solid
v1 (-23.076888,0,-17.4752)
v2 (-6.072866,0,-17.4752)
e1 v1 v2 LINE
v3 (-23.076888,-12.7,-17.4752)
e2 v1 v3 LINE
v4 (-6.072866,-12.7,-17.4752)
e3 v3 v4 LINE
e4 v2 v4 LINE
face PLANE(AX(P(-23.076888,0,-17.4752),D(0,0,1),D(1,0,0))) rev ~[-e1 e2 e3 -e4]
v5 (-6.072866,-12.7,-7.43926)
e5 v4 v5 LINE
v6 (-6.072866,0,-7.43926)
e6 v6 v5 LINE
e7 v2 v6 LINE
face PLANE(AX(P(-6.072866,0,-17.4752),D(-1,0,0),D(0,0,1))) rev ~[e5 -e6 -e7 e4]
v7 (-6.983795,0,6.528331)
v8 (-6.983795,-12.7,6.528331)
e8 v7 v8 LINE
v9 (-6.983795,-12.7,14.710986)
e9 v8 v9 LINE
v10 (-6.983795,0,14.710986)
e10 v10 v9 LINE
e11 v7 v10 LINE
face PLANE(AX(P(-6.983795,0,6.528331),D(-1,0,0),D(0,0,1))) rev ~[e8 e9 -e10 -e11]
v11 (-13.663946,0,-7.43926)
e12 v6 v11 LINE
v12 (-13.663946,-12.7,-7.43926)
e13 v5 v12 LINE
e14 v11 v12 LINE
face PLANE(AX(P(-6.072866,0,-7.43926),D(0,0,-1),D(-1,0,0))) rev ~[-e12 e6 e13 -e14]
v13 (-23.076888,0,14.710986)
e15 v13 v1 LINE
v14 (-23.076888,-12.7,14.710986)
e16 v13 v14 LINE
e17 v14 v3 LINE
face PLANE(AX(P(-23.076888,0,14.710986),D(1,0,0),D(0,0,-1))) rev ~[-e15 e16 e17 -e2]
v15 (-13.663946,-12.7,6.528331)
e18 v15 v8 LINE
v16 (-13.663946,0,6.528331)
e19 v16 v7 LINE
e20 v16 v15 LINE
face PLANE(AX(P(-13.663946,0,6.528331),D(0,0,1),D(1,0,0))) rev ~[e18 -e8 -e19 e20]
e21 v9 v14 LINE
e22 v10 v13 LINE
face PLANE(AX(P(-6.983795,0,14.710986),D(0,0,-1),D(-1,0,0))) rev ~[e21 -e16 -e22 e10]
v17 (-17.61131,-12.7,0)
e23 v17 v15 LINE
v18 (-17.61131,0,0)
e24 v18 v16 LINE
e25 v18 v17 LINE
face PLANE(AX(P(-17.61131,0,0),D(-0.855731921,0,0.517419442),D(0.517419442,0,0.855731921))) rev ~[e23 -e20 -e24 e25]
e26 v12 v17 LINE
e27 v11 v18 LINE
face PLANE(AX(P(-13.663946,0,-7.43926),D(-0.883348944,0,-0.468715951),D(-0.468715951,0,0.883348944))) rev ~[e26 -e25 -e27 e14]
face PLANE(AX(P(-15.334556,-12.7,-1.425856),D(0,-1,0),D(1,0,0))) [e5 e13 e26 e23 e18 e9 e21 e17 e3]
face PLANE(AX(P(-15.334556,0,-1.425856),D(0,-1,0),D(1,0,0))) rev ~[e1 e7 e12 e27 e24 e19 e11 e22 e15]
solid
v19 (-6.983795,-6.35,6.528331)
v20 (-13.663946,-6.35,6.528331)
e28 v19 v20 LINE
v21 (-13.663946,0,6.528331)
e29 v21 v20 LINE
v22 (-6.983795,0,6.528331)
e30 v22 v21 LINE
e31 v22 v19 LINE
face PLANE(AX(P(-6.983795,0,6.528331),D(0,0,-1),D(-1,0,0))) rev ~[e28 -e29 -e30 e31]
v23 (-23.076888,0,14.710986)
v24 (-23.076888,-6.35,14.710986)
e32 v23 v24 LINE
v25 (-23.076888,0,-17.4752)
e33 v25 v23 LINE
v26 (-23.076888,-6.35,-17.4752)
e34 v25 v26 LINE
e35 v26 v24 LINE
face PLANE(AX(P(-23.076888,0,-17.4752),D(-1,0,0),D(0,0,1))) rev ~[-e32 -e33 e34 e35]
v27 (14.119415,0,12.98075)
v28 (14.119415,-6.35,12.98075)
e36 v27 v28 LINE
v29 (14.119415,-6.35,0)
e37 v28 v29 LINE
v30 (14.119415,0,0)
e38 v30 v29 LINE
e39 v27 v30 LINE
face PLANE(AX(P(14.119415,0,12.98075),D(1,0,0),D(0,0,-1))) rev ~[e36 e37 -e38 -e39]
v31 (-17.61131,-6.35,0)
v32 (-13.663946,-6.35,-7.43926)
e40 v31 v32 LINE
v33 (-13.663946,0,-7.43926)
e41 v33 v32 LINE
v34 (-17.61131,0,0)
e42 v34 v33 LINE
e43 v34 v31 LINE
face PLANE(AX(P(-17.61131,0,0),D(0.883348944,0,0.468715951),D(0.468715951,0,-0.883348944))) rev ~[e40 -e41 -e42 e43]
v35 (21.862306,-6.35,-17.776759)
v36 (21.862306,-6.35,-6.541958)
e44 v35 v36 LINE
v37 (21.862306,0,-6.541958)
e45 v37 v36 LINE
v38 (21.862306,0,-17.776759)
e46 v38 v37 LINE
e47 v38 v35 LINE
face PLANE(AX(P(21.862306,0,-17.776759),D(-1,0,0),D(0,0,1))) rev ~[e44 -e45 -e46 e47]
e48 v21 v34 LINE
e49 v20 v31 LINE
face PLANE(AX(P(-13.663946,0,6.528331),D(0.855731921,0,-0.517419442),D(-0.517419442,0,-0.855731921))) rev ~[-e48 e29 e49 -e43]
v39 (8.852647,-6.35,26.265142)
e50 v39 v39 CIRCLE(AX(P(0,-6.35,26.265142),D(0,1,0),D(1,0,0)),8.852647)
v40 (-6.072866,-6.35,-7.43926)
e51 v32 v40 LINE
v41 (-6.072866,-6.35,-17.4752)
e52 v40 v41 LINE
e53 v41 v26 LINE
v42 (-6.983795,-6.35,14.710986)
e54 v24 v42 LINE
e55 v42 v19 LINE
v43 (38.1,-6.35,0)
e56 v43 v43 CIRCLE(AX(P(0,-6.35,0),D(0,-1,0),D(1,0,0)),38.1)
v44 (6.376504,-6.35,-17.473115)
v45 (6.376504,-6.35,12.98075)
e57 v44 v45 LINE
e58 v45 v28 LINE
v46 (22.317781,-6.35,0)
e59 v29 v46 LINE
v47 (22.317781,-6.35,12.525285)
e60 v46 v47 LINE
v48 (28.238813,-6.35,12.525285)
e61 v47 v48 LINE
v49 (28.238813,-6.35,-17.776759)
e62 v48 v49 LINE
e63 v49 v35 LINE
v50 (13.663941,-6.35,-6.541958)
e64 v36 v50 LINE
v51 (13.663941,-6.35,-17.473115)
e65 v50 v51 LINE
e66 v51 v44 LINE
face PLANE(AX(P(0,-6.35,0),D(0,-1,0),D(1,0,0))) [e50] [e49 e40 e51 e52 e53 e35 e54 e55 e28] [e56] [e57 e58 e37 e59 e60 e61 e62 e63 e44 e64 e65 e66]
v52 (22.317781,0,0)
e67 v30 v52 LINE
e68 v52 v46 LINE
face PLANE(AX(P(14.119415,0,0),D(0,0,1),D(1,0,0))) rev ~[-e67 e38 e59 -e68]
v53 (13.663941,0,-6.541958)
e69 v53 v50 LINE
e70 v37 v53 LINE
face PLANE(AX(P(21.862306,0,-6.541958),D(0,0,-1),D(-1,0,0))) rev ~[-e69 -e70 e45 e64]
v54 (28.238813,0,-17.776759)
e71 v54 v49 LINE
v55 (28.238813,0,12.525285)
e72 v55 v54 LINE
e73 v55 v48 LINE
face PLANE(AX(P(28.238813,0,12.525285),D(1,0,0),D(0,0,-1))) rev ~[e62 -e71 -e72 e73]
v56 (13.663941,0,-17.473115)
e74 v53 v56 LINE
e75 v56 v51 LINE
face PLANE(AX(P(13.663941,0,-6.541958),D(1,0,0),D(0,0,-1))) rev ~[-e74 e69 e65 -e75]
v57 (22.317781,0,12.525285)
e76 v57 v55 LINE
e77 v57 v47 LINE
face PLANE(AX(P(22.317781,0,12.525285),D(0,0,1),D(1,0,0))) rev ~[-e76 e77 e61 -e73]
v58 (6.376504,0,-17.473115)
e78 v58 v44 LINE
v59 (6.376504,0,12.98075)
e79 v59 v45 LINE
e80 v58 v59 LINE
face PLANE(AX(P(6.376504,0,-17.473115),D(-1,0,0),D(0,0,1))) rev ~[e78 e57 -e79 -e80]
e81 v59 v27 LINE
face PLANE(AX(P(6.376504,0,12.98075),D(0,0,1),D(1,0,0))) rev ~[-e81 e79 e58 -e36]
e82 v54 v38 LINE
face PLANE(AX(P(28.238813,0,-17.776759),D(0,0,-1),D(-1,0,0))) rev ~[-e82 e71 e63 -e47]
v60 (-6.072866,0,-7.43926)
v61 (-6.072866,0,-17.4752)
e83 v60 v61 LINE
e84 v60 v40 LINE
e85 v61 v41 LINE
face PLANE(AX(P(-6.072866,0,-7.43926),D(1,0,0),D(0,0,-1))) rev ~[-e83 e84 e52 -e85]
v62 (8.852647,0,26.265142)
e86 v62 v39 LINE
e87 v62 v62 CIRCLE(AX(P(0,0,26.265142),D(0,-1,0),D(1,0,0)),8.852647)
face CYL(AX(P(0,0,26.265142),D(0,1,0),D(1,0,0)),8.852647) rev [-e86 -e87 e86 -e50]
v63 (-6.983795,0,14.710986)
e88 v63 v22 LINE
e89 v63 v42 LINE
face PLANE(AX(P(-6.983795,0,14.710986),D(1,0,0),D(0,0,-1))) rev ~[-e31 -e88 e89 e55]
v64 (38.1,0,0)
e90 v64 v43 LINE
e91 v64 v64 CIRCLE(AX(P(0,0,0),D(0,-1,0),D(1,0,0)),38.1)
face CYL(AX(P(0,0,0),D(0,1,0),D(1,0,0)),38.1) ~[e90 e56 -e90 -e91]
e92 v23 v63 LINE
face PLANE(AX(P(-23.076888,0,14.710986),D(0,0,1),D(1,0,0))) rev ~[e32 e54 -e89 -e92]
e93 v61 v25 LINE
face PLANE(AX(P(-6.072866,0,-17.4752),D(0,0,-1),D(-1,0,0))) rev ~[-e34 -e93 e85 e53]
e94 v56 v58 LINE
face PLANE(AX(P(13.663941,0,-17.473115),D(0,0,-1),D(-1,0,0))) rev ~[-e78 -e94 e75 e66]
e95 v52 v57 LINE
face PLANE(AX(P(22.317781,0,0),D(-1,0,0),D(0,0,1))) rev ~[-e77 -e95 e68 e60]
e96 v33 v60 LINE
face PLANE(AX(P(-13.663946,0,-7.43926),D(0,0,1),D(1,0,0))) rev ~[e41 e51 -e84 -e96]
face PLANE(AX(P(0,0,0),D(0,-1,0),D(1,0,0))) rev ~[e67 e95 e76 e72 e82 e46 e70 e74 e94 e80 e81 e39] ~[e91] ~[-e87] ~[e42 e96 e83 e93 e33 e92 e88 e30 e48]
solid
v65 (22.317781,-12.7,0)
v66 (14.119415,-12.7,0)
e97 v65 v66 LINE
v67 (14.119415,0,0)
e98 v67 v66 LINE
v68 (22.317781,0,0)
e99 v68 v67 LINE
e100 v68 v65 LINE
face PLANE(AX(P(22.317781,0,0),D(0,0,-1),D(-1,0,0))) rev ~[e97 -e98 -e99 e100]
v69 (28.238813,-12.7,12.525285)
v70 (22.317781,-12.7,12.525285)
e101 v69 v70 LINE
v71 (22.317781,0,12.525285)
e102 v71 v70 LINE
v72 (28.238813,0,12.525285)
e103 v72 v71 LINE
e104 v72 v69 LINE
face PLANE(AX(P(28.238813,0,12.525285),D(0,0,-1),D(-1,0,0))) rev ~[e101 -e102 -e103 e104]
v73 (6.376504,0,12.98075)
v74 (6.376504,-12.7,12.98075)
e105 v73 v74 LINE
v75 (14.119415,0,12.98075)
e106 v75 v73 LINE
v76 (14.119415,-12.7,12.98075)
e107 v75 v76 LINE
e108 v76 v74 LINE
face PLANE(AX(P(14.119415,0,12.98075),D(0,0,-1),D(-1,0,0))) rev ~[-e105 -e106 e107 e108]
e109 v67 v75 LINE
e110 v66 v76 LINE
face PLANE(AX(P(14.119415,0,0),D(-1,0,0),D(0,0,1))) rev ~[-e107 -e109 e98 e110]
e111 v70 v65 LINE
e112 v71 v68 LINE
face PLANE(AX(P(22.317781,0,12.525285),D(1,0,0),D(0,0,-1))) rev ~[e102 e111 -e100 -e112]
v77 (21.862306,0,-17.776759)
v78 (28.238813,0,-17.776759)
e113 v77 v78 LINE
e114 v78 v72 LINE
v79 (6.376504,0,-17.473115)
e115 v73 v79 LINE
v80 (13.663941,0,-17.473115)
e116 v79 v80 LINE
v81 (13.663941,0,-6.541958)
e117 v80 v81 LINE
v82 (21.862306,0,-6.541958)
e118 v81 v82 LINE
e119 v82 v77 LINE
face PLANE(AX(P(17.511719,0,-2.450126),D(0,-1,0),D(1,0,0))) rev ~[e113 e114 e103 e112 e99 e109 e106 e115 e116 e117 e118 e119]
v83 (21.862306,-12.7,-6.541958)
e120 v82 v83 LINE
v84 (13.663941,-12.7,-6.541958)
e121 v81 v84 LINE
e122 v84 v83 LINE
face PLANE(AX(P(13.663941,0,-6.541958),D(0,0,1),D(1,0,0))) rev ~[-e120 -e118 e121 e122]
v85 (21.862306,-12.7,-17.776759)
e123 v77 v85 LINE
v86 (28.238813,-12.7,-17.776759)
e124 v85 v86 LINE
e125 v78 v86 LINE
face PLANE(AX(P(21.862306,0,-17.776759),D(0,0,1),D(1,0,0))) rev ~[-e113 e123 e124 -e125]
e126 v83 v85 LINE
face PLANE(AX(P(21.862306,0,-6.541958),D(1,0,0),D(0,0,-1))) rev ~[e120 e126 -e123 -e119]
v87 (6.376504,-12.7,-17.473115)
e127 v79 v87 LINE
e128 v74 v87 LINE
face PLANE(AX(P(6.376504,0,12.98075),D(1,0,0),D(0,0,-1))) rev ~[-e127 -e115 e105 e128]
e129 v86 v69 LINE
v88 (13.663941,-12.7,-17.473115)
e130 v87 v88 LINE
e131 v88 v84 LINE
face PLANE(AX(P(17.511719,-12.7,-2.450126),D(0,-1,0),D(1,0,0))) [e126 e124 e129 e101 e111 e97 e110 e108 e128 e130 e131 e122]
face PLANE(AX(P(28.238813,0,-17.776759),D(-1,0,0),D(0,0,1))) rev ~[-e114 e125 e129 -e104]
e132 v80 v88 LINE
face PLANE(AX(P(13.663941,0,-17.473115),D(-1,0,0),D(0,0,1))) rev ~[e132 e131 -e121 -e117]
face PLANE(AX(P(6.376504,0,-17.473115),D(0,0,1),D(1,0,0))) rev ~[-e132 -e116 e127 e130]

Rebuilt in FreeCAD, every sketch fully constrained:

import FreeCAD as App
import Part
import Sketcher

V = App.Vector
Q = App.Units.Quantity

doc = App.newDocument("Part")
body = doc.addObject("PartDesign::Body", "Body")
body.AllowCompound = True

sketch1 = body.newObject("Sketcher::SketchObject", "Sketch")
sketch1.AttachmentSupport = (doc.getObject("XZ_Plane"), [""])
sketch1.MapMode = "FlatFace"
sketch1.addGeometry(Part.LineSegment(V(-7, 7, 0), V(-7, 15, 0)), False)
sketch1.addGeometry(Part.LineSegment(V(-7, 15, 0), V(-23, 15, 0)), False)
sketch1.addGeometry(Part.LineSegment(V(-23, 15, 0), V(-23, -17, 0)), False)
sketch1.addGeometry(Part.LineSegment(V(-23, -17, 0), V(-6, -17, 0)), False)
sketch1.addGeometry(Part.LineSegment(V(-6, -17, 0), V(-6, -7, 0)), False)
sketch1.addGeometry(Part.LineSegment(V(-6, -7, 0), V(-14, -7, 0)), False)
sketch1.addGeometry(Part.LineSegment(V(-14, -7, 0), V(-18, 0, 0)), False)
sketch1.addGeometry(Part.LineSegment(V(-18, 0, 0), V(-14, 7, 0)), False)
sketch1.addGeometry(Part.LineSegment(V(-14, 7, 0), V(-7, 7, 0)), False)
sketch1.addGeometry(Part.LineSegment(V(14, 13, 0), V(6, 13, 0)), False)
sketch1.addGeometry(Part.LineSegment(V(6, 13, 0), V(6, -17, 0)), False)
sketch1.addGeometry(Part.LineSegment(V(6, -17, 0), V(14, -17, 0)), False)
sketch1.addGeometry(Part.LineSegment(V(14, -17, 0), V(14, -7, 0)), False)
sketch1.addGeometry(Part.LineSegment(V(14, -7, 0), V(22, -7, 0)), False)
sketch1.addGeometry(Part.LineSegment(V(22, -7, 0), V(22, -18, 0)), False)
sketch1.addGeometry(Part.LineSegment(V(22, -18, 0), V(28, -18, 0)), False)
sketch1.addGeometry(Part.LineSegment(V(28, -18, 0), V(28, 13, 0)), False)
sketch1.addGeometry(Part.LineSegment(V(28, 13, 0), V(22, 13, 0)), False)
sketch1.addGeometry(Part.LineSegment(V(22, 13, 0), V(22, 0, 0)), False)
sketch1.addGeometry(Part.LineSegment(V(22, 0, 0), V(14, 0, 0)), False)
sketch1.addGeometry(Part.LineSegment(V(14, 0, 0), V(14, 13, 0)), False)
sketch1.addConstraint(Sketcher.Constraint("Coincident", 0, 2, 1, 1))
sketch1.addConstraint(Sketcher.Constraint("Coincident", 1, 2, 2, 1))
sketch1.addConstraint(Sketcher.Constraint("Coincident", 2, 2, 3, 1))
sketch1.addConstraint(Sketcher.Constraint("Coincident", 3, 2, 4, 1))
sketch1.addConstraint(Sketcher.Constraint("Coincident", 4, 2, 5, 1))
sketch1.addConstraint(Sketcher.Constraint("Coincident", 5, 2, 6, 1))
sketch1.addConstraint(Sketcher.Constraint("Coincident", 6, 2, 7, 1))
sketch1.addConstraint(Sketcher.Constraint("Coincident", 7, 2, 8, 1))
sketch1.addConstraint(Sketcher.Constraint("Coincident", 8, 2, 0, 1))
sketch1.addConstraint(Sketcher.Constraint("Coincident", 9, 2, 10, 1))
sketch1.addConstraint(Sketcher.Constraint("Coincident", 10, 2, 11, 1))
sketch1.addConstraint(Sketcher.Constraint("Coincident", 11, 2, 12, 1))
sketch1.addConstraint(Sketcher.Constraint("Coincident", 12, 2, 13, 1))
sketch1.addConstraint(Sketcher.Constraint("Coincident", 13, 2, 14, 1))
sketch1.addConstraint(Sketcher.Constraint("Coincident", 14, 2, 15, 1))
sketch1.addConstraint(Sketcher.Constraint("Coincident", 15, 2, 16, 1))
sketch1.addConstraint(Sketcher.Constraint("Coincident", 16, 2, 17, 1))
sketch1.addConstraint(Sketcher.Constraint("Coincident", 17, 2, 18, 1))
sketch1.addConstraint(Sketcher.Constraint("Coincident", 18, 2, 19, 1))
sketch1.addConstraint(Sketcher.Constraint("Coincident", 19, 2, 20, 1))
sketch1.addConstraint(Sketcher.Constraint("Coincident", 20, 2, 9, 1))
sketch1.addConstraint(Sketcher.Constraint("Vertical", 0))
sketch1.addConstraint(Sketcher.Constraint("Horizontal", 1))
sketch1.addConstraint(Sketcher.Constraint("Vertical", 2))
sketch1.addConstraint(Sketcher.Constraint("Horizontal", 3))
sketch1.addConstraint(Sketcher.Constraint("Vertical", 4))
sketch1.addConstraint(Sketcher.Constraint("Horizontal", 5))
sketch1.addConstraint(Sketcher.Constraint("Horizontal", 8))
sketch1.addConstraint(Sketcher.Constraint("Horizontal", 9))
sketch1.addConstraint(Sketcher.Constraint("Vertical", 10))
sketch1.addConstraint(Sketcher.Constraint("Horizontal", 11))
sketch1.addConstraint(Sketcher.Constraint("Vertical", 12))
sketch1.addConstraint(Sketcher.Constraint("Horizontal", 13))
sketch1.addConstraint(Sketcher.Constraint("Vertical", 14))
sketch1.addConstraint(Sketcher.Constraint("Horizontal", 15))
sketch1.addConstraint(Sketcher.Constraint("Vertical", 16))
sketch1.addConstraint(Sketcher.Constraint("Horizontal", 17))
sketch1.addConstraint(Sketcher.Constraint("Vertical", 18))
sketch1.addConstraint(Sketcher.Constraint("Horizontal", 19))
sketch1.addConstraint(Sketcher.Constraint("Vertical", 20))
sketch1.addConstraint(Sketcher.Constraint("PointOnObject", 6, 2, -1))
sketch1.addConstraint(Sketcher.Constraint("PointOnObject", 18, 2, -1))
sketch1.addConstraint(Sketcher.Constraint("Vertical", 5, 2, 7, 2))
sketch1.addConstraint(Sketcher.Constraint("Equal", 13, 19))
sketch1.addConstraint(Sketcher.Constraint("DistanceY", 2, 2, -1, 1, Q("0.688 in")))
sketch1.addConstraint(Sketcher.Constraint("DistanceY", 14, 2, 14, 1, Q("11.234801 mm")))
sketch1.addConstraint(Sketcher.Constraint("DistanceX", 3, 1, 3, 2, Q("17.004022 mm")))
sketch1.addConstraint(Sketcher.Constraint("DistanceX", 5, 2, 5, 1, Q("7.59108 mm")))
sketch1.addConstraint(Sketcher.Constraint("DistanceX", 8, 1, 8, 2, Q("6.680151 mm")))
sketch1.addConstraint(Sketcher.Constraint("DistanceX", 9, 2, 9, 1, Q("7.742911 mm")))
sketch1.addConstraint(Sketcher.Constraint("DistanceY", 4, 1, 4, 2, Q("10.03594 mm")))
sketch1.addConstraint(Sketcher.Constraint("DistanceY", 20, 1, 20, 2, Q("12.98075 mm")))
sketch1.addConstraint(Sketcher.Constraint("DistanceX", 0, 2, 9, 2, Q("13.360299 mm")))
sketch1.addConstraint(Sketcher.Constraint("DistanceY", 4, 2, 12, 2, Q("0.897302 mm")))
sketch1.addConstraint(Sketcher.Constraint("DistanceY", 17, 2, 0, 2, Q("2.185701 mm")))
sketch1.addConstraint(Sketcher.Constraint("DistanceX", 11, 1, 11, 2, Q("7.287437 mm")))
sketch1.addConstraint(Sketcher.Constraint("DistanceX", 13, 1, 13, 2, Q("8.198365 mm")))
sketch1.addConstraint(Sketcher.Constraint("DistanceX", 15, 1, 15, 2, Q("6.376507 mm")))
sketch1.addConstraint(Sketcher.Constraint("DistanceY", 0, 1, 0, 2, Q("8.182655 mm")))
sketch1.addConstraint(Sketcher.Constraint("DistanceY", 2, 2, 2, 1, Q("32.186186 mm")))
sketch1.addConstraint(Sketcher.Constraint("DistanceY", 10, 2, 10, 1, Q("30.453865 mm")))
sketch1.addConstraint(Sketcher.Constraint("DistanceX", 1, 2, -1, 1, Q("23.076888 mm")))
sketch1.addConstraint(Sketcher.Constraint("DistanceX", 6, 2, -1, 1, Q("17.61131 mm")))
pad1 = body.newObject("PartDesign::Pad", "Pad")
pad1.Profile = sketch1
pad1.Length = Q("0.5 in")
body2 = doc.addObject("PartDesign::Body", "Body001")

sketch2 = body2.newObject("Sketcher::SketchObject", "Sketch001")
sketch2.AttachmentSupport = (doc.getObject("XZ_Plane001"), [""])
sketch2.MapMode = "FlatFace"
sketch2.addGeometry(Part.Circle(V(0, 0, 0), V(0, 0, 1), 38), False)
sketch2.addGeometry(Part.LineSegment(V(14, -17, 0), V(6, -17, 0)), False)
sketch2.addGeometry(Part.LineSegment(V(6, -17, 0), V(6, 13, 0)), False)
sketch2.addGeometry(Part.LineSegment(V(6, 13, 0), V(14, 13, 0)), False)
sketch2.addGeometry(Part.LineSegment(V(14, 13, 0), V(14, 0, 0)), False)
sketch2.addGeometry(Part.LineSegment(V(14, 0, 0), V(22, 0, 0)), False)
sketch2.addGeometry(Part.LineSegment(V(22, 0, 0), V(22, 13, 0)), False)
sketch2.addGeometry(Part.LineSegment(V(22, 13, 0), V(28, 13, 0)), False)
sketch2.addGeometry(Part.LineSegment(V(28, 13, 0), V(28, -18, 0)), False)
sketch2.addGeometry(Part.LineSegment(V(28, -18, 0), V(22, -18, 0)), False)
sketch2.addGeometry(Part.LineSegment(V(22, -18, 0), V(22, -7, 0)), False)
sketch2.addGeometry(Part.LineSegment(V(22, -7, 0), V(14, -7, 0)), False)
sketch2.addGeometry(Part.LineSegment(V(14, -7, 0), V(14, -17, 0)), False)
sketch2.addGeometry(Part.LineSegment(V(-23, -17, 0), V(-23, 15, 0)), False)
sketch2.addGeometry(Part.LineSegment(V(-23, 15, 0), V(-7, 15, 0)), False)
sketch2.addGeometry(Part.LineSegment(V(-7, 15, 0), V(-7, 7, 0)), False)
sketch2.addGeometry(Part.LineSegment(V(-7, 7, 0), V(-14, 7, 0)), False)
sketch2.addGeometry(Part.LineSegment(V(-14, 7, 0), V(-18, 0, 0)), False)
sketch2.addGeometry(Part.LineSegment(V(-18, 0, 0), V(-14, -7, 0)), False)
sketch2.addGeometry(Part.LineSegment(V(-14, -7, 0), V(-6, -7, 0)), False)
sketch2.addGeometry(Part.LineSegment(V(-6, -7, 0), V(-6, -17, 0)), False)
sketch2.addGeometry(Part.LineSegment(V(-6, -17, 0), V(-23, -17, 0)), False)
sketch2.addConstraint(Sketcher.Constraint("Coincident", 1, 2, 2, 1))
sketch2.addConstraint(Sketcher.Constraint("Coincident", 2, 2, 3, 1))
sketch2.addConstraint(Sketcher.Constraint("Coincident", 3, 2, 4, 1))
sketch2.addConstraint(Sketcher.Constraint("Coincident", 4, 2, 5, 1))
sketch2.addConstraint(Sketcher.Constraint("Coincident", 5, 2, 6, 1))
sketch2.addConstraint(Sketcher.Constraint("Coincident", 6, 2, 7, 1))
sketch2.addConstraint(Sketcher.Constraint("Coincident", 7, 2, 8, 1))
sketch2.addConstraint(Sketcher.Constraint("Coincident", 8, 2, 9, 1))
sketch2.addConstraint(Sketcher.Constraint("Coincident", 9, 2, 10, 1))
sketch2.addConstraint(Sketcher.Constraint("Coincident", 10, 2, 11, 1))
sketch2.addConstraint(Sketcher.Constraint("Coincident", 11, 2, 12, 1))
sketch2.addConstraint(Sketcher.Constraint("Coincident", 12, 2, 1, 1))
sketch2.addConstraint(Sketcher.Constraint("Coincident", 13, 2, 14, 1))
sketch2.addConstraint(Sketcher.Constraint("Coincident", 14, 2, 15, 1))
sketch2.addConstraint(Sketcher.Constraint("Coincident", 15, 2, 16, 1))
sketch2.addConstraint(Sketcher.Constraint("Coincident", 16, 2, 17, 1))
sketch2.addConstraint(Sketcher.Constraint("Coincident", 17, 2, 18, 1))
sketch2.addConstraint(Sketcher.Constraint("Coincident", 18, 2, 19, 1))
sketch2.addConstraint(Sketcher.Constraint("Coincident", 19, 2, 20, 1))
sketch2.addConstraint(Sketcher.Constraint("Coincident", 20, 2, 21, 1))
sketch2.addConstraint(Sketcher.Constraint("Coincident", 21, 2, 13, 1))
sketch2.addConstraint(Sketcher.Constraint("Horizontal", 1))
sketch2.addConstraint(Sketcher.Constraint("Vertical", 2))
sketch2.addConstraint(Sketcher.Constraint("Horizontal", 3))
sketch2.addConstraint(Sketcher.Constraint("Vertical", 4))
sketch2.addConstraint(Sketcher.Constraint("Horizontal", 5))
sketch2.addConstraint(Sketcher.Constraint("Vertical", 6))
sketch2.addConstraint(Sketcher.Constraint("Horizontal", 7))
sketch2.addConstraint(Sketcher.Constraint("Vertical", 8))
sketch2.addConstraint(Sketcher.Constraint("Horizontal", 9))
sketch2.addConstraint(Sketcher.Constraint("Vertical", 10))
sketch2.addConstraint(Sketcher.Constraint("Horizontal", 11))
sketch2.addConstraint(Sketcher.Constraint("Vertical", 12))
sketch2.addConstraint(Sketcher.Constraint("Vertical", 13))
sketch2.addConstraint(Sketcher.Constraint("Horizontal", 14))
sketch2.addConstraint(Sketcher.Constraint("Vertical", 15))
sketch2.addConstraint(Sketcher.Constraint("Horizontal", 16))
sketch2.addConstraint(Sketcher.Constraint("Horizontal", 19))
sketch2.addConstraint(Sketcher.Constraint("Vertical", 20))
sketch2.addConstraint(Sketcher.Constraint("Horizontal", 21))
sketch2.addConstraint(Sketcher.Constraint("Coincident", 0, 3, -1, 1))
sketch2.addConstraint(Sketcher.Constraint("PointOnObject", 4, 2, -1))
sketch2.addConstraint(Sketcher.Constraint("PointOnObject", 17, 2, -1))
sketch2.addConstraint(Sketcher.Constraint("Vertical", 16, 2, 18, 2))
sketch2.addConstraint(Sketcher.Constraint("Equal", 5, 11))
sketch2.addConstraint(Sketcher.Constraint("Diameter", 0, Q("3 in")))
sketch2.addConstraint(Sketcher.Constraint("DistanceY", 20, 2, -1, 1, Q("0.688 in")))
sketch2.addConstraint(Sketcher.Constraint("DistanceY", 10, 1, 10, 2, Q("11.234801 mm")))
sketch2.addConstraint(Sketcher.Constraint("DistanceX", 3, 1, 3, 2, Q("7.742911 mm")))
sketch2.addConstraint(Sketcher.Constraint("DistanceX", 16, 2, 16, 1, Q("6.680151 mm")))
sketch2.addConstraint(Sketcher.Constraint("DistanceX", 19, 1, 19, 2, Q("7.59108 mm")))
sketch2.addConstraint(Sketcher.Constraint("DistanceX", 21, 2, 21, 1, Q("17.004022 mm")))
sketch2.addConstraint(Sketcher.Constraint("DistanceY", 4, 2, 4, 1, Q("12.98075 mm")))
sketch2.addConstraint(Sketcher.Constraint("DistanceY", 20, 2, 20, 1, Q("10.03594 mm")))
sketch2.addConstraint(Sketcher.Constraint("DistanceX", 14, 2, 2, 2, Q("13.360299 mm")))
sketch2.addConstraint(Sketcher.Constraint("DistanceX", 1, 2, 1, 1, Q("7.287437 mm")))
sketch2.addConstraint(Sketcher.Constraint("DistanceX", 5, 1, 5, 2, Q("8.198366 mm")))
sketch2.addConstraint(Sketcher.Constraint("DistanceX", 7, 1, 7, 2, Q("5.921032 mm")))
sketch2.addConstraint(Sketcher.Constraint("DistanceY", 2, 1, 2, 2, Q("30.453865 mm")))
sketch2.addConstraint(Sketcher.Constraint("DistanceY", 6, 1, 6, 2, Q("12.525285 mm")))
sketch2.addConstraint(Sketcher.Constraint("DistanceY", 8, 2, 8, 1, Q("30.302044 mm")))
sketch2.addConstraint(Sketcher.Constraint("DistanceY", 13, 1, 13, 2, Q("32.186186 mm")))
sketch2.addConstraint(Sketcher.Constraint("DistanceY", 15, 2, 15, 1, Q("8.182655 mm")))
sketch2.addConstraint(Sketcher.Constraint("DistanceX", -1, 1, 5, 2, Q("22.317781 mm")))
sketch2.addConstraint(Sketcher.Constraint("DistanceX", 17, 2, -1, 1, Q("17.61131 mm")))
pad2 = body2.newObject("PartDesign::Pad", "Pad001")
pad2.Profile = sketch2
pad2.Length = Q("0.25 in")

sketch3 = body2.newObject("Sketcher::SketchObject", "Sketch002")
sketch3.AttachmentSupport = (doc.getObject("XZ_Plane001"), [""])
sketch3.MapMode = "FlatFace"
sketch3.addGeometry(Part.Circle(V(0, 26, 0), V(0, 0, 1), 9), False)
sketch3.addConstraint(Sketcher.Constraint("PointOnObject", 0, 3, -2))
sketch3.addConstraint(Sketcher.Constraint("Diameter", 0, Q("17.705294 mm")))
sketch3.addConstraint(Sketcher.Constraint("DistanceY", -1, 1, 0, 3, Q("26.265142 mm")))
pocket1 = body2.newObject("PartDesign::Pocket", "Pocket")
pocket1.Profile = sketch3
pocket1.Length = Q("1 in")
pocket1.Reversed = True

doc.recompute()
